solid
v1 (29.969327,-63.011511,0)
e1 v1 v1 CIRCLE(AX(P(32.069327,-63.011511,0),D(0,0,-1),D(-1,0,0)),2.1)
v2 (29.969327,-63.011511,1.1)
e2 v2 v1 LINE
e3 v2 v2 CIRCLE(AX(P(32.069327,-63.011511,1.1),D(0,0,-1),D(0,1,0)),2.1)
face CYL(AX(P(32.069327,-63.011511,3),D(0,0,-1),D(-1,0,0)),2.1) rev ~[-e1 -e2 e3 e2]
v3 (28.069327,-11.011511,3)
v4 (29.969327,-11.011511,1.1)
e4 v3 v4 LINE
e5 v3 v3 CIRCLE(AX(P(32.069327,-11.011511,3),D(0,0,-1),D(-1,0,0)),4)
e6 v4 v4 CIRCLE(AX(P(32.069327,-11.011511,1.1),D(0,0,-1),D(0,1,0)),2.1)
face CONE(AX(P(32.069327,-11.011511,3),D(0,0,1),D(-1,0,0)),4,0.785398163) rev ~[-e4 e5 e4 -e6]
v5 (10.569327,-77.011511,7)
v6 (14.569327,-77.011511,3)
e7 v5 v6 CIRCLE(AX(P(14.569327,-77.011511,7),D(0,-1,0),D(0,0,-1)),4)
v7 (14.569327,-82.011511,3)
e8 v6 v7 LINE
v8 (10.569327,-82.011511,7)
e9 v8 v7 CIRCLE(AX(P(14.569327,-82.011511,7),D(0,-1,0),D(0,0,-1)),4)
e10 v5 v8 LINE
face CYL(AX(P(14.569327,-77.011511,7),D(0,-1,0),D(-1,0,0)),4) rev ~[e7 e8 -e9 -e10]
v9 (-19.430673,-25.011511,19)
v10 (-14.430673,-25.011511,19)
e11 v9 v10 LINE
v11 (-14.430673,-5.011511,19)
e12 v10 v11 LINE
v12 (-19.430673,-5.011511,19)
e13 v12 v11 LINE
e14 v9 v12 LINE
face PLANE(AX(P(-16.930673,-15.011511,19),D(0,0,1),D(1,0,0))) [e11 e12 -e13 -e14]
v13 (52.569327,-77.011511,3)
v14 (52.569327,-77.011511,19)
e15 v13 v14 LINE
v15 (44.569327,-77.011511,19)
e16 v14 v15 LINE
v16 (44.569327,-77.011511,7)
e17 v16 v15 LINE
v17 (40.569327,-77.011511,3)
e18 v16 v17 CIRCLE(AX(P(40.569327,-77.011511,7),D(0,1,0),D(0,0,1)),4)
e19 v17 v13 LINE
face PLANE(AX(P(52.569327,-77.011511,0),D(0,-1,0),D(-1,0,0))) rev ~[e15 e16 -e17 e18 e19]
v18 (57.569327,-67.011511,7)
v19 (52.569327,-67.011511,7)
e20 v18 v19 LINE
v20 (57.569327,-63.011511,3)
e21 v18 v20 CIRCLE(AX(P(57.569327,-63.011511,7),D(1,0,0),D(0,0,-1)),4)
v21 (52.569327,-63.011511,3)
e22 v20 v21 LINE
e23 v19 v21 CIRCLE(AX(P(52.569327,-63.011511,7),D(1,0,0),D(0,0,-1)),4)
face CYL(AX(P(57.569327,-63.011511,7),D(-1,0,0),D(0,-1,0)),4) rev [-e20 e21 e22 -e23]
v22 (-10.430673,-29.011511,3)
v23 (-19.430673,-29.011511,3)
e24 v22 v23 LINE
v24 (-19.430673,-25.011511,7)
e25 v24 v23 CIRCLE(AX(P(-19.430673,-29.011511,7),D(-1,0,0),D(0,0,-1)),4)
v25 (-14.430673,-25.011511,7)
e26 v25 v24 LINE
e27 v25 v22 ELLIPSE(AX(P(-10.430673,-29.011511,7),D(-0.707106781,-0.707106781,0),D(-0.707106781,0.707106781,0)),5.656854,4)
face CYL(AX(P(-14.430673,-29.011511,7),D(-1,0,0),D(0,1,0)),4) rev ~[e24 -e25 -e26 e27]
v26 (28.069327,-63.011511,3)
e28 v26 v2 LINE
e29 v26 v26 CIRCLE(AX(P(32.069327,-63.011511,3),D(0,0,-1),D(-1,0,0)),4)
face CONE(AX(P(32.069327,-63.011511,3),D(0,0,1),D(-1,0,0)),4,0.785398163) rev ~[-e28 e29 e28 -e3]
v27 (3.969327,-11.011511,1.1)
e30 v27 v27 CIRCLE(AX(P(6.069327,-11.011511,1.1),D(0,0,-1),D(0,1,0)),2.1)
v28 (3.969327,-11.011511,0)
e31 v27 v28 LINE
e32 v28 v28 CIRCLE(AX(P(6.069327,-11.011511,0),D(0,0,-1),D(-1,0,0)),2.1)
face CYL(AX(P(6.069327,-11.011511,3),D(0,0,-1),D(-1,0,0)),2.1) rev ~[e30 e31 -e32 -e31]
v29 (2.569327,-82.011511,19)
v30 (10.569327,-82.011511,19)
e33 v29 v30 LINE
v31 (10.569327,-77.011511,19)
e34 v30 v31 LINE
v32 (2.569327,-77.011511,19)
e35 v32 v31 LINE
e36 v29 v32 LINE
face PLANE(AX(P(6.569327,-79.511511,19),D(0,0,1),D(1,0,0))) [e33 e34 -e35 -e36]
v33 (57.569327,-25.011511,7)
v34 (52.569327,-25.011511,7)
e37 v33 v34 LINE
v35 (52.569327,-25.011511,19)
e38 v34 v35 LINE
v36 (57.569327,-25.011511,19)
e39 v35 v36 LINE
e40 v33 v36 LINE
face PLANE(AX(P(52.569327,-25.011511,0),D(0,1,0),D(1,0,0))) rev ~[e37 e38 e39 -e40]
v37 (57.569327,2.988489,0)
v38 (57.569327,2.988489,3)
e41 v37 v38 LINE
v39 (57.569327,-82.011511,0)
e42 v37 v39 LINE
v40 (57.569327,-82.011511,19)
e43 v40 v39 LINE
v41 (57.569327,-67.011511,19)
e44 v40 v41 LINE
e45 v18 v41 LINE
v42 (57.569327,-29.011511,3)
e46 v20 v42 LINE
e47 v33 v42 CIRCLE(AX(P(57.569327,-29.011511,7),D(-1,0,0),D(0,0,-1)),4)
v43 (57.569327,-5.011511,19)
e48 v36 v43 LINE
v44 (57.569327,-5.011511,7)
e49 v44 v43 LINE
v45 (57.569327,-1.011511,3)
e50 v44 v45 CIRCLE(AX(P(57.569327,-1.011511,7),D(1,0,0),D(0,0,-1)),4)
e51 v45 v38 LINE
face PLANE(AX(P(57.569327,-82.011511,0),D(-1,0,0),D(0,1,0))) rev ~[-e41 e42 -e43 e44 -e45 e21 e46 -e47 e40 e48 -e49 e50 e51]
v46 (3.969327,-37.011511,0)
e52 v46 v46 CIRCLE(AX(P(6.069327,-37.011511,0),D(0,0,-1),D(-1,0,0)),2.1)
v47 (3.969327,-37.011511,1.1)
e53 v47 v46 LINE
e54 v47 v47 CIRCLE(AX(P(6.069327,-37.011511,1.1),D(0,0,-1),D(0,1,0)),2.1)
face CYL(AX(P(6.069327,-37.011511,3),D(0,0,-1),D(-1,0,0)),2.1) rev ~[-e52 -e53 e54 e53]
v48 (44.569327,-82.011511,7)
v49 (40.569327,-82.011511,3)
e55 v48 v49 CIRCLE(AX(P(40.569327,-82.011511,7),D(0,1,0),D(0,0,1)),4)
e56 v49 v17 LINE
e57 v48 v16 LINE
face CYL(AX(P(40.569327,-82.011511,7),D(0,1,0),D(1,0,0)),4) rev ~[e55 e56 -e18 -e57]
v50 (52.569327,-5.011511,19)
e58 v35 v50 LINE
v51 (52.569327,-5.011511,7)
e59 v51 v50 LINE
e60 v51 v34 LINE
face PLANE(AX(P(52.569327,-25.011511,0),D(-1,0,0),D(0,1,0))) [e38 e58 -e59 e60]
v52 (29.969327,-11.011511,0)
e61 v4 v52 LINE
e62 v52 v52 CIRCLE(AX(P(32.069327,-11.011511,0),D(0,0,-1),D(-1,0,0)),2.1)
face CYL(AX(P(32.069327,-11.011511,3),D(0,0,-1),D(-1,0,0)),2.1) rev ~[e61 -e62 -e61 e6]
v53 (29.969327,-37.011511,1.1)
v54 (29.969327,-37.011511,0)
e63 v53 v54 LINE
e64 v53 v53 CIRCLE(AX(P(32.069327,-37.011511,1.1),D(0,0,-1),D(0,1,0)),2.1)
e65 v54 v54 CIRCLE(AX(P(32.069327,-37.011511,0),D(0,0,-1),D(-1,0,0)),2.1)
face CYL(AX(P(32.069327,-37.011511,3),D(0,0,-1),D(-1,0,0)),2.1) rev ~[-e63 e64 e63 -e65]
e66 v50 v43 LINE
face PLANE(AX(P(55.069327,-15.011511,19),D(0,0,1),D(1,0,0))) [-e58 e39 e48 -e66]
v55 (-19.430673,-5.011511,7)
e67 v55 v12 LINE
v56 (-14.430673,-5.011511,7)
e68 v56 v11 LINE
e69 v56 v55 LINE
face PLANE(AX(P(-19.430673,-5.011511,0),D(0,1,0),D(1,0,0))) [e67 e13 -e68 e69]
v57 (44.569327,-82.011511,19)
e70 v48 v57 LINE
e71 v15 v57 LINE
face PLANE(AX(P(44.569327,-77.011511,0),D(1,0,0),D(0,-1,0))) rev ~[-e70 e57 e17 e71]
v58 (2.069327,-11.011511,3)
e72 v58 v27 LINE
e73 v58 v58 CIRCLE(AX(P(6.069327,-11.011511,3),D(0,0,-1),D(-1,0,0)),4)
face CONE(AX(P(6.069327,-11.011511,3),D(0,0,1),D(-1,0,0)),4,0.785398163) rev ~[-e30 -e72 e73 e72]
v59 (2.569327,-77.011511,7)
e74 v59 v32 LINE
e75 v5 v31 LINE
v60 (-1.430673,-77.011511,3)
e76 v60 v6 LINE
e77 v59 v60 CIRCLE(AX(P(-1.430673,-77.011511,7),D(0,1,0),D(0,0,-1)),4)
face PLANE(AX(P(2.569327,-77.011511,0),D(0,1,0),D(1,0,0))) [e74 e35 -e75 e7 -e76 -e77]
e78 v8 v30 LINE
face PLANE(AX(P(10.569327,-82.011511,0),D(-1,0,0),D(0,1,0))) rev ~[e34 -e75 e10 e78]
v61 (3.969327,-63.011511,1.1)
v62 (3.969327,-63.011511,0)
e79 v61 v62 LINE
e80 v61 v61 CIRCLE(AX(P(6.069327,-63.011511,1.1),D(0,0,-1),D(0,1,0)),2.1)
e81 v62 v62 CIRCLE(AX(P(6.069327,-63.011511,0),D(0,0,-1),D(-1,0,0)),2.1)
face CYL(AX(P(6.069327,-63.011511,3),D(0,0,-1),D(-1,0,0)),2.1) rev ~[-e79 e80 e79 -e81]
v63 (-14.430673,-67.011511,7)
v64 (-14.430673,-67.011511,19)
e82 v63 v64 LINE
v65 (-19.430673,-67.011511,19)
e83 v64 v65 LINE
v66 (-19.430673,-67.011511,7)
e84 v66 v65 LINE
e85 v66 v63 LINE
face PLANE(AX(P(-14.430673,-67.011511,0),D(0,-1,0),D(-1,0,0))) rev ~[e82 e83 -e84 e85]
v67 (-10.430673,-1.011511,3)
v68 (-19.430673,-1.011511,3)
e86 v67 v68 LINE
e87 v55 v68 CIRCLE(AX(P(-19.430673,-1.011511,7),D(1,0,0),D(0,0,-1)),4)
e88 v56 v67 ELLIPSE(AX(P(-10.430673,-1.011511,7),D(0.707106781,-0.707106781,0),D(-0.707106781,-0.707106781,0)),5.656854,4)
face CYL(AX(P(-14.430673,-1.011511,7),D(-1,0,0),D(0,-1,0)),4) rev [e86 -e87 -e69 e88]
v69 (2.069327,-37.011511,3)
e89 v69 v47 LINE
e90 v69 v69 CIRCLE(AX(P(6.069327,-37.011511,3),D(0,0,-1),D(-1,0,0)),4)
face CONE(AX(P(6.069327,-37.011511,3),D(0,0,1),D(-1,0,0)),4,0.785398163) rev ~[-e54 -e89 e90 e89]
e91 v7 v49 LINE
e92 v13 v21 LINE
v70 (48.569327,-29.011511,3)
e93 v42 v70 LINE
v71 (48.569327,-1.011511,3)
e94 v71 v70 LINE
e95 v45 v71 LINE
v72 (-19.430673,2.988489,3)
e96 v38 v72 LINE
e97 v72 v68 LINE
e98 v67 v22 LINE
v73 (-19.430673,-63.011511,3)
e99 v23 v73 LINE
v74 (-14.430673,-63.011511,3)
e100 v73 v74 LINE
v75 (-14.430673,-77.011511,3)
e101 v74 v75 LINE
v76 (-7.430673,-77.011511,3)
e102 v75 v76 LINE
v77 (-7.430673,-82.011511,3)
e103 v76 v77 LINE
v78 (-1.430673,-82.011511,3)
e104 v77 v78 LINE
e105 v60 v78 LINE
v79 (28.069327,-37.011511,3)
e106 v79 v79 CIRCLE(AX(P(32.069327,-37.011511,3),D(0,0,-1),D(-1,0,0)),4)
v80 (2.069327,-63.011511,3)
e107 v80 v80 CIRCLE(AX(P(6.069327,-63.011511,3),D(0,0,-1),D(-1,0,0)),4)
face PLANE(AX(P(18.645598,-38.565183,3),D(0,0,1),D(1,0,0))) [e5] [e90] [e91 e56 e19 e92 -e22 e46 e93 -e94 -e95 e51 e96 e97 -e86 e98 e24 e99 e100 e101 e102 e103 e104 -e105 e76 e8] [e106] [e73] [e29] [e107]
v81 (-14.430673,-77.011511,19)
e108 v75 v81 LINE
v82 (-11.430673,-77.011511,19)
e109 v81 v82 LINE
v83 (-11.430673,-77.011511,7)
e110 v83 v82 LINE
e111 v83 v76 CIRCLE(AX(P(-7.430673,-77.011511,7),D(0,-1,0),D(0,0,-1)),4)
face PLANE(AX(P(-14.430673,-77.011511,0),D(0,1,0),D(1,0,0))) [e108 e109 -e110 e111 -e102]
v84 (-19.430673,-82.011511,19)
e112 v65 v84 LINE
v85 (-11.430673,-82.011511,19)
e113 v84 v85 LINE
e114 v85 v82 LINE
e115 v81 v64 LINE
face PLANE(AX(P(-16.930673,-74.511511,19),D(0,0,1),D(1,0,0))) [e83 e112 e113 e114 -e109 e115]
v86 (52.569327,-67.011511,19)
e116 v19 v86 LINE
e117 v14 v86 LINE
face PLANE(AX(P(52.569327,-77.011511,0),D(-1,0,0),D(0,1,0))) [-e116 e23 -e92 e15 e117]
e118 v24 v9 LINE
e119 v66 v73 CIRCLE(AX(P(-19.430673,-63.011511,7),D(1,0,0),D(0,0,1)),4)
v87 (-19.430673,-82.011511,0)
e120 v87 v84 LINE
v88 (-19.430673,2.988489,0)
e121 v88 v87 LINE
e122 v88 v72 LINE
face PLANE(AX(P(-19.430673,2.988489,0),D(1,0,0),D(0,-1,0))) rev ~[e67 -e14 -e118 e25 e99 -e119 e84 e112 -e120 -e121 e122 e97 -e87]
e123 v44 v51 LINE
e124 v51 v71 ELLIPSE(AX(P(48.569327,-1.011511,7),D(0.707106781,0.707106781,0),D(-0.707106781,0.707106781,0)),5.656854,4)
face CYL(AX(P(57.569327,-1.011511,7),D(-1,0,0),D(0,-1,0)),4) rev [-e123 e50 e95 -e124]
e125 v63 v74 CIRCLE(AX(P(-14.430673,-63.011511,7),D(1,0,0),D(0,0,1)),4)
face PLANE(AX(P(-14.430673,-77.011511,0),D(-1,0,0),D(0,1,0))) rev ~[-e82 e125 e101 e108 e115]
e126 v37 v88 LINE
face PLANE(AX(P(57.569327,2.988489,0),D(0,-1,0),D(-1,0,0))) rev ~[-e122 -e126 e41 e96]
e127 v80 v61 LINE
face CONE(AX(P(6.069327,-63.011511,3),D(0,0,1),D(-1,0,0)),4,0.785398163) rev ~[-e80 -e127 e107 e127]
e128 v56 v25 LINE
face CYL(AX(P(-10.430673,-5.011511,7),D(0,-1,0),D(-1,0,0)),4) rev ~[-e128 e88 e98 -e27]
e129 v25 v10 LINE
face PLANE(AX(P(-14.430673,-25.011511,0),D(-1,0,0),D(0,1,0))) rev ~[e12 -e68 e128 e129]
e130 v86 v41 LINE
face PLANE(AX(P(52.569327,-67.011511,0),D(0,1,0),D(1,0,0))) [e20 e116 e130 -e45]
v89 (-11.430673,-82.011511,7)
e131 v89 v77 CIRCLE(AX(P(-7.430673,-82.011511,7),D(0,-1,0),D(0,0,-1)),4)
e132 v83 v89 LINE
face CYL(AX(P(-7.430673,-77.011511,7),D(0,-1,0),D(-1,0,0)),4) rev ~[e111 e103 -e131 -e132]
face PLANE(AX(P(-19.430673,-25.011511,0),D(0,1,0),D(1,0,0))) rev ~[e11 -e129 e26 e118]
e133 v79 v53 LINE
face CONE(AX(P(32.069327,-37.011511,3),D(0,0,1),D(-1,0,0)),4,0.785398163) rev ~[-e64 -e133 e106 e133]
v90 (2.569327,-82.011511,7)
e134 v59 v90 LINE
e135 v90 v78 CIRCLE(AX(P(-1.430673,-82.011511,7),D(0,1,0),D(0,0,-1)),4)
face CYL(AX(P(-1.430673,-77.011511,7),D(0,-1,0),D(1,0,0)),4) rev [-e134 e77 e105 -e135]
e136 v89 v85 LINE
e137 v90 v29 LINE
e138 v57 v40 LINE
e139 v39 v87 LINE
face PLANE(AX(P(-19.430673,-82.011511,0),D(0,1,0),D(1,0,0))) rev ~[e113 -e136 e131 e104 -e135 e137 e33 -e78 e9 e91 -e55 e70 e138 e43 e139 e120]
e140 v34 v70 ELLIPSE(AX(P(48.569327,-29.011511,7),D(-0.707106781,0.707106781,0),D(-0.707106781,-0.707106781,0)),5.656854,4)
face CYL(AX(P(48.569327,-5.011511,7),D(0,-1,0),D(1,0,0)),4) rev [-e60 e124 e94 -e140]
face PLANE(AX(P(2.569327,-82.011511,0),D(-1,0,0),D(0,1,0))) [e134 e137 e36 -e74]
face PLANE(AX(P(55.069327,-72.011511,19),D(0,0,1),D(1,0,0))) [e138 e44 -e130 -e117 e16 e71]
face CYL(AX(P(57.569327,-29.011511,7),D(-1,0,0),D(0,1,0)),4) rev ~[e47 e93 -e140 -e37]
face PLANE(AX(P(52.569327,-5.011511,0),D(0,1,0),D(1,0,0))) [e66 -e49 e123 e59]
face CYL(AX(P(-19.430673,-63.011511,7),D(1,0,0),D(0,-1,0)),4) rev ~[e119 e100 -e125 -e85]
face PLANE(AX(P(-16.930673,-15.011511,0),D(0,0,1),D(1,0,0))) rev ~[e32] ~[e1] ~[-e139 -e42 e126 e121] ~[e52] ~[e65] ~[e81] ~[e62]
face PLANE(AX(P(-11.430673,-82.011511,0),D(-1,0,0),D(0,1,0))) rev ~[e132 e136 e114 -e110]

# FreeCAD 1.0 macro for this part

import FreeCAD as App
import Part
import Sketcher

V = App.Vector


def edges_at(feature, points):
    """Names of the edges that pass closest to the given points."""
    edges = feature.Shape.Edges
    near = lambda p: min(range(len(edges)), key=lambda i: edges[i].distToShape(Part.Vertex(*p))[0])
    return sorted({f"Edge{near(p) + 1}" for p in points})


def add_polygon(sketch, points):
    """Adds a closed chain of lines whose ends are joined by coincident constraints."""
    first, n = sketch.GeometryCount, len(points)
    for a, b in zip(points, points[1:] + points[:1]):
        sketch.addGeometry(Part.LineSegment(App.Vector(*a, 0), App.Vector(*b, 0)), False)
    for i in range(n):
        sketch.addConstraint(Sketcher.Constraint("Coincident", first + i, 2, first + (i + 1) % n, 1))

doc = App.newDocument("Part")
body = doc.addObject("PartDesign::Body", "Body")

sketch1 = body.newObject("Sketcher::SketchObject", "Sketch")
sketch1.AttachmentSupport = (doc.getObject("XY_Plane"), [""])
sketch1.MapMode = "FlatFace"
add_polygon(sketch1, [(58, 3), (-19, 3), (-19, -82), (58, -82)])
sketch1.addConstraint([
    Sketcher.Constraint("Horizontal", 0),
    Sketcher.Constraint("Vertical", 1),
    Sketcher.Constraint("Horizontal", 2),
    Sketcher.Constraint("Vertical", 3),
    Sketcher.Constraint("DistanceX", 0, 2, 0, 1, 77.0),
    Sketcher.Constraint("DistanceY", 1, 2, 1, 1, 85.0),
    Sketcher.Constraint("DistanceY", -1, 1, 0, 2, 2.988489),
    Sketcher.Constraint("DistanceX", 0, 2, -1, 1, 19.430673),
])
pad1 = body.newObject("PartDesign::Pad", "Pad")
pad1.Profile = sketch1
pad1.Length = 3

sketch2 = body.newObject("Sketcher::SketchObject", "Sketch001")
sketch2.AttachmentSupport = (doc.getObject("XY_Plane"), [""])
sketch2.MapMode = "FlatFace"
add_polygon(sketch2, [(-19.4, -5), (-19.4, -25), (-14.4, -25), (-14.4, -5)])
add_polygon(sketch2, [(52.6, -5), (52.6, -25), (57.6, -25), (57.6, -5)])
add_polygon(sketch2, [(52.6, -67), (52.6, -77), (44.6, -77), (44.6, -82), (57.6, -82), (57.6, -67)])
add_polygon(sketch2, [(2.6, -77), (2.6, -82), (10.6, -82), (10.6, -77)])
add_polygon(sketch2, [(-14.4, -67), (-19.4, -67), (-19.4, -82), (-11.4, -82), (-11.4, -77), (-14.4, -77)])
sketch2.addConstraint([
    Sketcher.Constraint("Vertical", 0),
    Sketcher.Constraint("Horizontal", 1),
    Sketcher.Constraint("Vertical", 2),
    Sketcher.Constraint("Horizontal", 3),
    Sketcher.Constraint("Vertical", 4),
    Sketcher.Constraint("Horizontal", 5),
    Sketcher.Constraint("Vertical", 6),
    Sketcher.Constraint("Horizontal", 7),
    Sketcher.Constraint("Vertical", 8),
    Sketcher.Constraint("Horizontal", 9),
    Sketcher.Constraint("Vertical", 10),
    Sketcher.Constraint("Horizontal", 11),
    Sketcher.Constraint("Vertical", 12),
    Sketcher.Constraint("Horizontal", 13),
    Sketcher.Constraint("Vertical", 14),
    Sketcher.Constraint("Horizontal", 15),
    Sketcher.Constraint("Vertical", 16),
    Sketcher.Constraint("Horizontal", 17),
    Sketcher.Constraint("Horizontal", 18),
    Sketcher.Constraint("Vertical", 19),
    Sketcher.Constraint("Horizontal", 20),
    Sketcher.Constraint("Vertical", 21),
    Sketcher.Constraint("Horizontal", 22),
    Sketcher.Constraint("Vertical", 23),
    Sketcher.Constraint("Horizontal", 1, 2, 4, 2),
    Sketcher.Constraint("Horizontal", 3, 2, 6, 2),
    Sketcher.Constraint("Horizontal", 11, 2, 14, 2),
    Sketcher.Constraint("Horizontal", 9, 2, 16, 2),
    Sketcher.Constraint("Horizontal", 13, 2, 18, 2),
    Sketcher.Constraint("Horizontal", 15, 2, 19, 2),
    Sketcher.Constraint("Horizontal", 17, 2, 21, 2),
    Sketcher.Constraint("Vertical", 7, 2, 8, 2),
    Sketcher.Constraint("Vertical", 6, 2, 11, 2),
    Sketcher.Constraint("Vertical", 3, 2, 18, 2),
    Sketcher.Constraint("Vertical", 2, 2, 22, 2),
    Sketcher.Constraint("Equal", 3, 5),
    Sketcher.Constraint("Equal", 9, 15),
    Sketcher.Constraint("Equal", 17, 20),
    Sketcher.Constraint("Equal", 18, 10),
    Sketcher.Constraint("DistanceX", 1, 1, 1, 2, 5.0),
    Sketcher.Constraint("DistanceX", 9, 2, 9, 1, 8.0),
    Sketcher.Constraint("DistanceY", 0, 2, 0, 1, 20.0),
    Sketcher.Constraint("DistanceY", 8, 2, 8, 1, 10.0),
    Sketcher.Constraint("DistanceX", 1, 2, 4, 2, 67.0),
    Sketcher.Constraint("DistanceY", 8, 2, 4, 2, 52.0),
    Sketcher.Constraint("DistanceX", 14, 2, 10, 2, 42.0),
    Sketcher.Constraint("DistanceY", 0, 2, -1, 1, 25.011511),
    Sketcher.Constraint("DistanceX", 0, 2, -1, 1, 19.430673),
])
pad2 = body.newObject("PartDesign::Pad", "Pad001")
pad2.Profile = sketch2
pad2.Length = 19

sketch3 = body.newObject("Sketcher::SketchObject", "Sketch002")
sketch3.AttachmentSupport = (doc.getObject("XY_Plane"), [""])
sketch3.MapMode = "FlatFace"
sketch3.AttachmentOffset = App.Placement(V(0, 0, 3), App.Rotation())
sketch3.addGeometry([
    Part.Circle(V(6.1, -11, 0), V(0, 0, 1), 2.1),
    Part.Circle(V(32.1, -11, 0), V(0, 0, 1), 2.1),
    Part.Circle(V(6.1, -63, 0), V(0, 0, 1), 2.1),
    Part.Circle(V(32.1, -63, 0), V(0, 0, 1), 2.1),
    Part.Circle(V(32.1, -37, 0), V(0, 0, 1), 2.1),
    Part.Circle(V(6.1, -37, 0), V(0, 0, 1), 2.1),
], False)
sketch3.addConstraint([
    Sketcher.Constraint("Equal", 0, 1),
    Sketcher.Constraint("Equal", 1, 2),
    Sketcher.Constraint("Equal", 2, 3),
    Sketcher.Constraint("Equal", 3, 4),
    Sketcher.Constraint("Equal", 4, 5),
    Sketcher.Constraint("Horizontal", 0, 3, 1, 3),
    Sketcher.Constraint("Horizontal", 2, 3, 3, 3),
    Sketcher.Constraint("Horizontal", 4, 3, 5, 3),
    Sketcher.Constraint("Vertical", 0, 3, 2, 3),
    Sketcher.Constraint("Vertical", 1, 3, 3, 3),
    Sketcher.Constraint("Vertical", 3, 3, 4, 3),
    Sketcher.Constraint("Vertical", 2, 3, 5, 3),
    Sketcher.Constraint("Diameter", 0, 4.2),
    Sketcher.Constraint("DistanceX", 0, 3, 1, 3, 26.0),
    Sketcher.Constraint("DistanceY", 2, 3, 0, 3, 52.0),
    Sketcher.Constraint("DistanceY", 4, 3, 1, 3, 26.0),
    Sketcher.Constraint("DistanceY", 0, 3, -1, 1, 11.011511),
    Sketcher.Constraint("DistanceX", -1, 1, 0, 3, 6.069327),
])
doc.recompute()
hole = body.newObject("PartDesign::Hole", "Hole")
hole.Profile = sketch3
hole.ThreadType = "None"
hole.Diameter = 4.2
hole.DepthType = "ThroughAll"
hole.HoleCutType = "Countersink"
hole.HoleCutDiameter = 8
hole.HoleCutCountersinkAngle = 90
doc.recompute()

fillet = body.newObject("PartDesign::Fillet", "Fillet")
fillet.Base = (hole, edges_at(hole, [
    (-16.931, -25.012, 3),
    (-16.931, -67.012, 3),
    (-11.431, -79.512, 3),
    (10.569, -79.512, 3),
    (2.569, -79.512, 3),
    (44.569, -79.512, 3),
    (55.069, -25.012, 3),
    (55.069, -67.012, 3),
    (55.069, -5.012, 3),
    (-16.931, -5.012, 3),
    (-14.431, -15.012, 3),
    (52.569, -15.012, 3),
]))
fillet.Radius = 4

doc.recompute()
